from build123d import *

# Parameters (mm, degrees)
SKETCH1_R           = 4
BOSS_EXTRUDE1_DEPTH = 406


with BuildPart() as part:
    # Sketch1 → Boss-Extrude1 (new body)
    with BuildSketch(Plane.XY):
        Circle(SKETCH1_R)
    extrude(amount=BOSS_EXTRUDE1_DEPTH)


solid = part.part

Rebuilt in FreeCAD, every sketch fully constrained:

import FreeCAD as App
import Part
import Sketcher
from FreeCAD import Vector
Q = App.Units.Quantity

doc = App.newDocument("Part")
body = doc.addObject("PartDesign::Body", "Body")

sketch1 = body.newObject("Sketcher::SketchObject", "Sketch")
sketch1.AttachmentSupport = (doc.getObject("XY_Plane"), [""])
sketch1.MapMode = "FlatFace"
sketch1.addGeometry(Part.Circle(Vector(0, 0, 0), Vector(0, 0, 1), 4), False)
sketch1.addConstraint([
    Sketcher.Constraint("Coincident", 0, 3, -1, 1),
    Sketcher.Constraint("Diameter", 0, Q("8 mm")),
])
pad1 = body.newObject("PartDesign::Pad", "Pad")
pad1.Profile = sketch1
pad1.Length = 406

doc.recompute()
